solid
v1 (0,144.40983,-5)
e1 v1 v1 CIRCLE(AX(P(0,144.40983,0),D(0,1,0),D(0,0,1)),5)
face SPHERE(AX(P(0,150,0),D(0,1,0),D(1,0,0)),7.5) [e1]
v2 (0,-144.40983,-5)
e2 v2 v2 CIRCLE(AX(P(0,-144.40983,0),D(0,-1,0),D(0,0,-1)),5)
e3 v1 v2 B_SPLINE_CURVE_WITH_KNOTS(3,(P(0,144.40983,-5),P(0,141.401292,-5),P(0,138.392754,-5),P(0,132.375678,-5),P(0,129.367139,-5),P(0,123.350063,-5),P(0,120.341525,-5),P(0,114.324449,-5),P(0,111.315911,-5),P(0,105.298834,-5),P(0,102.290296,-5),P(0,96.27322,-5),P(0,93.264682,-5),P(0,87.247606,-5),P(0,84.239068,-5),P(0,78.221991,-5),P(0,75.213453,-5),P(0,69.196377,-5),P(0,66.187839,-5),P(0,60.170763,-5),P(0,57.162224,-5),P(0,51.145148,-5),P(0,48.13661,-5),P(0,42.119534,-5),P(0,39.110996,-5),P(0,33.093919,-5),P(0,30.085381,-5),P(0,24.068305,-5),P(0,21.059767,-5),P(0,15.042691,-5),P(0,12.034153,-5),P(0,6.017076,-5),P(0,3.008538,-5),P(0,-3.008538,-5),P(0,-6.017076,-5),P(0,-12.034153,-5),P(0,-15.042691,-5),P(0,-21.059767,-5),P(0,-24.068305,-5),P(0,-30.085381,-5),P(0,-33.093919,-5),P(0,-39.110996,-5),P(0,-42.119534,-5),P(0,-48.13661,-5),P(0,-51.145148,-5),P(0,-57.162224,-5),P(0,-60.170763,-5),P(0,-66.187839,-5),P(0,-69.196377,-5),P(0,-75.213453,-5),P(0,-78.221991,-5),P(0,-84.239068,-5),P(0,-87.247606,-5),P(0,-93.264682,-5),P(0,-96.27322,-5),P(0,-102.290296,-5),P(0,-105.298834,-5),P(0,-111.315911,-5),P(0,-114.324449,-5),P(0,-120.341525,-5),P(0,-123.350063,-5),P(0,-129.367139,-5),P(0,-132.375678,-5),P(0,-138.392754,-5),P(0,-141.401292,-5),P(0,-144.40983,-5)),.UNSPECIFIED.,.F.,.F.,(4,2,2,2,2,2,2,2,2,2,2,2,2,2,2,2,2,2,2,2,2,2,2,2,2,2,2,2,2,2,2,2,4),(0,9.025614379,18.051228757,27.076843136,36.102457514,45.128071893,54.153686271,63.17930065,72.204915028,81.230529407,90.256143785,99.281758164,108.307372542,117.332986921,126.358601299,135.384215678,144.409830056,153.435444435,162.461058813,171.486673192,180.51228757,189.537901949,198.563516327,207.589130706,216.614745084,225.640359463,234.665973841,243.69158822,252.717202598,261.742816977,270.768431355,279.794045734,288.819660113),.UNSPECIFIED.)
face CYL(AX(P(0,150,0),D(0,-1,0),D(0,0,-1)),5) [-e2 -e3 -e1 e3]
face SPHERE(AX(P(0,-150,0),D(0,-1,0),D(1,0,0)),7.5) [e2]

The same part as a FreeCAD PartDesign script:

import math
import FreeCAD as App
import Part
import Sketcher

V = App.Vector
Q = App.Units.Quantity

doc = App.newDocument("Part")
body = doc.addObject("PartDesign::Body", "Body")

sketch1 = body.newObject("Sketcher::SketchObject", "Sketch")
sketch1.AttachmentSupport = (doc.getObject("XZ_Plane"), [""])
sketch1.MapMode = "FlatFace"
sketch1.addGeometry(Part.Circle(V(0, 0, 0), V(0, 0, 1), 5), False)
sketch1.addConstraint(Sketcher.Constraint("Coincident", 0, 3, -1, 1))
sketch1.addConstraint(Sketcher.Constraint("Diameter", 0, Q("10 mm")))
pad1 = body.newObject("PartDesign::Pad", "Pad")
pad1.Profile = sketch1
pad1.Length = 300
pad1.Midplane = True

sketch2 = body.newObject("Sketcher::SketchObject", "Sketch001")
sketch2.AttachmentSupport = (doc.getObject("XY_Plane"), [""])
sketch2.MapMode = "FlatFace"
sketch2.addGeometry(Part.LineSegment(V(0, 158, 0), V(0, 142, 0)), False)
sketch2.addGeometry(Part.ArcOfCircle(Part.Circle(V(0, 150, 0), V(0, 0, 1), 8), math.radians(-90), math.radians(90)), False)
sketch2.addConstraint(Sketcher.Constraint("Coincident", 0, 1, 1, 2))
sketch2.addConstraint(Sketcher.Constraint("Coincident", 1, 1, 0, 2))
sketch2.addConstraint(Sketcher.Constraint("Vertical", 0))
sketch2.addConstraint(Sketcher.Constraint("PointOnObject", 1, 3, -2))
sketch2.addConstraint(Sketcher.Constraint("PointOnObject", 0, 1, -2))
sketch2.addConstraint(Sketcher.Constraint("Radius", 1, Q("7.5 mm")))
sketch2.addConstraint(Sketcher.Constraint("DistanceY", -1, 1, 1, 3, Q("150 mm")))
revolution = body.newObject("PartDesign::Revolution", "Revolution")
revolution.Profile = sketch2
revolution.ReferenceAxis = (sketch2, ["V_Axis"])
revolution.Angle = 360
doc.recompute()

mirrored = body.newObject("PartDesign::Mirrored", "Mirrored")
mirrored.Originals = [revolution]
mirrored.MirrorPlane = (doc.getObject("XZ_Plane"), [""])
body.Tip = mirrored

doc.recompute()
